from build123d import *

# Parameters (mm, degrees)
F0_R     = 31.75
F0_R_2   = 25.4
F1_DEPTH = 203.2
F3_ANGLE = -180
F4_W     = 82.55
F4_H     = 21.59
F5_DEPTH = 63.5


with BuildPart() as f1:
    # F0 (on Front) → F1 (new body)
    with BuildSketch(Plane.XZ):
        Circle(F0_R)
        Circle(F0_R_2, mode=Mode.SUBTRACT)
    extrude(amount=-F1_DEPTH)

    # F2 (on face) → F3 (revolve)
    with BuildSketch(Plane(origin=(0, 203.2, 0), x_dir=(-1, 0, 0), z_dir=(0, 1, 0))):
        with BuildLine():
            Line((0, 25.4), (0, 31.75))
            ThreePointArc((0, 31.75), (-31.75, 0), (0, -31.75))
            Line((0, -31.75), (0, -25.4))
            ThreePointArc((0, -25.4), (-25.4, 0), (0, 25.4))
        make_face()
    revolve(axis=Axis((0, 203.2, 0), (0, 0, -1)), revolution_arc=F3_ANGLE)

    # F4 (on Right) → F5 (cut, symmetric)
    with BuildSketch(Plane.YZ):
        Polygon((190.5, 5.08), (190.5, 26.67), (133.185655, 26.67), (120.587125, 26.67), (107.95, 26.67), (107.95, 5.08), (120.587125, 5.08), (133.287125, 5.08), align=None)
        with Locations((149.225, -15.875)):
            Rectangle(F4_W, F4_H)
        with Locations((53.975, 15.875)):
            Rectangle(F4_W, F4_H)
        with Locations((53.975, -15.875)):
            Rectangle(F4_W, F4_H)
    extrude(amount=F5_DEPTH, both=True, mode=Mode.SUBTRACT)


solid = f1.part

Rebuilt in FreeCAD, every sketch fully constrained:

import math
import FreeCAD as App
import Part
import Sketcher

V = App.Vector
Q = App.Units.Quantity


def add_polygon(sketch, points):
    """Adds a closed chain of lines whose ends are joined by coincident constraints."""
    first, n = sketch.GeometryCount, len(points)
    for a, b in zip(points, points[1:] + points[:1]):
        sketch.addGeometry(Part.LineSegment(App.Vector(*a, 0), App.Vector(*b, 0)), False)
    for i in range(n):
        sketch.addConstraint(Sketcher.Constraint("Coincident", first + i, 2, first + (i + 1) % n, 1))

doc = App.newDocument("Part")
body = doc.addObject("PartDesign::Body", "Body")

sketch1 = body.newObject("Sketcher::SketchObject", "Sketch")
sketch1.AttachmentSupport = (doc.getObject("XZ_Plane"), [""])
sketch1.MapMode = "FlatFace"
sketch1.addGeometry(Part.Circle(V(0, 0, 0), V(0, 0, 1), 32), False)
sketch1.addGeometry(Part.Circle(V(0, 0, 0), V(0, 0, 1), 25), False)
sketch1.addConstraint(Sketcher.Constraint("Coincident", 0, 3, -1, 1))
sketch1.addConstraint(Sketcher.Constraint("Coincident", 1, 3, -1, 1))
sketch1.addConstraint(Sketcher.Constraint("Diameter", 1, Q("2 in")))
sketch1.addConstraint(Sketcher.Constraint("Diameter", 0, Q("2.5 in")))
pad1 = body.newObject("PartDesign::Pad", "Pad")
pad1.Profile = sketch1
pad1.Length = Q("8 in")
pad1.Reversed = True

sketch2 = body.newObject("Sketcher::SketchObject", "Sketch001")
sketch2.AttachmentSupport = (doc.getObject("XZ_Plane"), [""])
sketch2.MapMode = "FlatFace"
sketch2.AttachmentOffset = App.Placement(V(0, 0, -8 * 25.4), App.Rotation())
sketch2.addGeometry(Part.LineSegment(V(0, 25, 0), V(0, 32, 0)), False)
sketch2.addGeometry(Part.ArcOfCircle(Part.Circle(V(0, 0, 0), V(0, 0, 1), 32), math.radians(-90), math.radians(90)), False)
sketch2.addGeometry(Part.LineSegment(V(0, -32, 0), V(0, -25, 0)), False)
sketch2.addGeometry(Part.ArcOfCircle(Part.Circle(V(0, 0, 0), V(0, 0, 1), 25), math.radians(-90), math.radians(90)), False)
sketch2.addConstraint(Sketcher.Constraint("Coincident", 0, 2, 1, 2))
sketch2.addConstraint(Sketcher.Constraint("Coincident", 1, 1, 2, 1))
sketch2.addConstraint(Sketcher.Constraint("Coincident", 2, 2, 3, 1))
sketch2.addConstraint(Sketcher.Constraint("Coincident", 3, 2, 0, 1))
sketch2.addConstraint(Sketcher.Constraint("Vertical", 0))
sketch2.addConstraint(Sketcher.Constraint("Vertical", 2))
sketch2.addConstraint(Sketcher.Constraint("Coincident", 1, 3, -1, 1))
sketch2.addConstraint(Sketcher.Constraint("Coincident", 3, 3, -1, 1))
sketch2.addConstraint(Sketcher.Constraint("PointOnObject", 0, 2, -2))
sketch2.addConstraint(Sketcher.Constraint("PointOnObject", 1, 1, -2))
sketch2.addConstraint(Sketcher.Constraint("Radius", 3, Q("1 in")))
sketch2.addConstraint(Sketcher.Constraint("Radius", 1, Q("1.25 in")))
revolution = body.newObject("PartDesign::Revolution", "Revolution")
revolution.Profile = sketch2
revolution.ReferenceAxis = (sketch2, ["V_Axis"])
revolution.Angle = 180

sketch3 = body.newObject("Sketcher::SketchObject", "Sketch002")
sketch3.AttachmentSupport = (doc.getObject("YZ_Plane"), [""])
sketch3.MapMode = "FlatFace"
add_polygon(sketch3, [(190, 5), (190, 27), (108, 27), (108, 5)])
add_polygon(sketch3, [(108, -5), (108, -27), (190, -27), (190, -5)])
add_polygon(sketch3, [(13, 27), (13, 5), (95, 5), (95, 27)])
add_polygon(sketch3, [(13, -5), (13, -27), (95, -27), (95, -5)])
sketch3.addConstraint(Sketcher.Constraint("Vertical", 0))
sketch3.addConstraint(Sketcher.Constraint("Horizontal", 1))
sketch3.addConstraint(Sketcher.Constraint("Vertical", 2))
sketch3.addConstraint(Sketcher.Constraint("Horizontal", 3))
sketch3.addConstraint(Sketcher.Constraint("Vertical", 4))
sketch3.addConstraint(Sketcher.Constraint("Horizontal", 5))
sketch3.addConstraint(Sketcher.Constraint("Vertical", 6))
sketch3.addConstraint(Sketcher.Constraint("Horizontal", 7))
sketch3.addConstraint(Sketcher.Constraint("Vertical", 8))
sketch3.addConstraint(Sketcher.Constraint("Horizontal", 9))
sketch3.addConstraint(Sketcher.Constraint("Vertical", 10))
sketch3.addConstraint(Sketcher.Constraint("Horizontal", 11))
sketch3.addConstraint(Sketcher.Constraint("Vertical", 12))
sketch3.addConstraint(Sketcher.Constraint("Horizontal", 13))
sketch3.addConstraint(Sketcher.Constraint("Vertical", 14))
sketch3.addConstraint(Sketcher.Constraint("Horizontal", 15))
sketch3.addConstraint(Sketcher.Constraint("Symmetric", 1, 2, 4, 2, -1))
sketch3.addConstraint(Sketcher.Constraint("Symmetric", 3, 2, 6, 2, -1))
sketch3.addConstraint(Sketcher.Constraint("Symmetric", 11, 2, 12, 2, -1))
sketch3.addConstraint(Sketcher.Constraint("Symmetric", 9, 2, 14, 2, -1))
sketch3.addConstraint(Sketcher.Constraint("Horizontal", 3, 2, 8, 2))
sketch3.addConstraint(Sketcher.Constraint("Horizontal", 1, 2, 10, 2))
sketch3.addConstraint(Sketcher.Constraint("Equal", 7, 9))
sketch3.addConstraint(Sketcher.Constraint("DistanceX", 8, 2, 3, 2, Q("7 in")))
sketch3.addConstraint(Sketcher.Constraint("DistanceX", 1, 2, 1, 1, Q("3.25 in")))
sketch3.addConstraint(Sketcher.Constraint("DistanceY", 0, 1, 0, 2, Q("0.85 in")))
sketch3.addConstraint(Sketcher.Constraint("DistanceX", -1, 1, 0, 2, Q("7.5 in")))
sketch3.addConstraint(Sketcher.Constraint("DistanceY", -1, 1, 2, 2, Q("0.2 in")))
pocket1 = body.newObject("PartDesign::Pocket", "Pocket")
pocket1.Profile = sketch3
pocket1.Length = Q("5 in")
pocket1.Midplane = True

doc.recompute()
